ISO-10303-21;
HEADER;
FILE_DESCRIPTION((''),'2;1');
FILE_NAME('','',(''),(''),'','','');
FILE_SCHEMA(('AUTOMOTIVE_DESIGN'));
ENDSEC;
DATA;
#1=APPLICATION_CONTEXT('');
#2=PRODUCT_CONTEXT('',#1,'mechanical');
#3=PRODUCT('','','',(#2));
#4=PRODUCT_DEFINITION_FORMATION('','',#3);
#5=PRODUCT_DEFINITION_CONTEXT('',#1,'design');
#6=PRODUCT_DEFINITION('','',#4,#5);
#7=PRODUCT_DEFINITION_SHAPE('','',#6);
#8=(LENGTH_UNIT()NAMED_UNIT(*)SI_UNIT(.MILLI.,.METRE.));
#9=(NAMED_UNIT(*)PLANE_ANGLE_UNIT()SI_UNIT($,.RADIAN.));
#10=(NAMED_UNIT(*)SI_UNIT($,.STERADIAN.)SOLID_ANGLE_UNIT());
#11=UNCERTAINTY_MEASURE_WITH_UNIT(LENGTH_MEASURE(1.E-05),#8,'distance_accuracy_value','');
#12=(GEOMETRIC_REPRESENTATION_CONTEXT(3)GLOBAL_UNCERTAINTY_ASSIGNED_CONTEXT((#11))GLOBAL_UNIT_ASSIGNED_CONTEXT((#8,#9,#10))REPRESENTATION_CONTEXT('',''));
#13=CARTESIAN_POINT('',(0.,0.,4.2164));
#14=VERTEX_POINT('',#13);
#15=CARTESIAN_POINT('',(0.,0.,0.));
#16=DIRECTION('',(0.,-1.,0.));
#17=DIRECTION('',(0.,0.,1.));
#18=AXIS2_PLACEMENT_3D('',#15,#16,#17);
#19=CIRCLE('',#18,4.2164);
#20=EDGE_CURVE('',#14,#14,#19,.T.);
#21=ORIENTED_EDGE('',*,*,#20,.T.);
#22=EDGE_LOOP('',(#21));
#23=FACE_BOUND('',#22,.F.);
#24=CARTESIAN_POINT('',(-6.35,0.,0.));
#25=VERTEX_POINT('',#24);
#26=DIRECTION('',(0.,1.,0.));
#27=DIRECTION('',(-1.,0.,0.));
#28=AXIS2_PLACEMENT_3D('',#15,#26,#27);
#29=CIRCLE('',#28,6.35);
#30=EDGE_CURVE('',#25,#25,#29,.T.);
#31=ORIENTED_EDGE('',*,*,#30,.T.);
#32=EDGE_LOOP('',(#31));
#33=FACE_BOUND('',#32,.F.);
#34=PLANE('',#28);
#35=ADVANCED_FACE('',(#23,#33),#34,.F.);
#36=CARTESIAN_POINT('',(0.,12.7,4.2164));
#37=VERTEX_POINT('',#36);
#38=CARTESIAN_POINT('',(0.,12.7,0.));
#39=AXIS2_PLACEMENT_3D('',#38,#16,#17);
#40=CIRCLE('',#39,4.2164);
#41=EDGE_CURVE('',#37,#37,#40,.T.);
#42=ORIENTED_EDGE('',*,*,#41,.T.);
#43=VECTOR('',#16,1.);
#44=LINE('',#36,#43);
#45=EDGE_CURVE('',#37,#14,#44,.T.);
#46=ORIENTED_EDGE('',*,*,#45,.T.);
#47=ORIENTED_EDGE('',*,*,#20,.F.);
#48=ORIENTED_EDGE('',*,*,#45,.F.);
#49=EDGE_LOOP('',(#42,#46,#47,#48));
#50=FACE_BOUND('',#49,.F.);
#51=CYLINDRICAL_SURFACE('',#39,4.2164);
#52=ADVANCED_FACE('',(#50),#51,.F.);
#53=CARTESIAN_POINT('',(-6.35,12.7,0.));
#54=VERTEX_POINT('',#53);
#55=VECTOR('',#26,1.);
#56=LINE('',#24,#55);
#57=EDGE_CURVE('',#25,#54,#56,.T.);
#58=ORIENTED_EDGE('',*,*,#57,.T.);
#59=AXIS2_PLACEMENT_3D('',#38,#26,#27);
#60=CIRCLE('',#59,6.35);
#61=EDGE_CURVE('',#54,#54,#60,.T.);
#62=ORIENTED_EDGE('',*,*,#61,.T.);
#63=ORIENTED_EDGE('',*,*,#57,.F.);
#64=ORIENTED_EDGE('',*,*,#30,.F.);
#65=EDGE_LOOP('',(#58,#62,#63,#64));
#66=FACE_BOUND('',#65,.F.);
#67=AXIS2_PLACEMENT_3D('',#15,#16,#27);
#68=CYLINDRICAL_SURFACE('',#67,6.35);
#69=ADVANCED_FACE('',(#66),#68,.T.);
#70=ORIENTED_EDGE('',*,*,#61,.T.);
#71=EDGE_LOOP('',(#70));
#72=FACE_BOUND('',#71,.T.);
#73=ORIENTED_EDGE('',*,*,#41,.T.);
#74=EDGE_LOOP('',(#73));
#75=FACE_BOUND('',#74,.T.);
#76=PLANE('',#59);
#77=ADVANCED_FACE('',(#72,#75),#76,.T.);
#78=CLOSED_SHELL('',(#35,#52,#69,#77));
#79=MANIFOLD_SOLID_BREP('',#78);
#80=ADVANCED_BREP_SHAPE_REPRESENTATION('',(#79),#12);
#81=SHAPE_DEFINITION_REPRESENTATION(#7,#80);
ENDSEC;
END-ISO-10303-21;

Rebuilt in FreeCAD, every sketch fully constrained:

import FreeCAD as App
import Part
import Sketcher
from FreeCAD import Vector
Q = App.Units.Quantity

doc = App.newDocument("Part")
body = doc.addObject("PartDesign::Body", "Body")

# Sketch on XZ plane
sketch1 = body.newObject("Sketcher::SketchObject", "Sketch")
sketch1.AttachmentSupport = (doc.getObject("XZ_Plane"), [""])
sketch1.MapMode = "FlatFace"
sketch1.addGeometry(Part.Circle(Vector(0, 0, 0), Vector(0, 0, 1), 6), False)
sketch1.addConstraint(Sketcher.Constraint("Coincident", 0, 3, -1, 1))
sketch1.addConstraint(Sketcher.Constraint("Diameter", 0, Q("0.5 in")))
pad1 = body.newObject("PartDesign::Pad", "Pad")
pad1.Profile = sketch1
pad1.Length = Q("0.5 in")
pad1.Reversed = True

# Sketch on XZ plane
sketch2 = body.newObject("Sketcher::SketchObject", "Sketch001")
sketch2.AttachmentSupport = (doc.getObject("XZ_Plane"), [""])
sketch2.MapMode = "FlatFace"
sketch2.AttachmentOffset = App.Placement(Vector(0, 0, -0.5 * 25.4), App.Rotation())
sketch2.addGeometry(Part.Circle(Vector(0, 0, 0), Vector(0, 0, 1), 4.2), False)
sketch2.addConstraint(Sketcher.Constraint("Coincident", 0, 3, -1, 1))
sketch2.addConstraint(Sketcher.Constraint("Diameter", 0, Q("0.332 in")))
doc.recompute()
hole = body.newObject("PartDesign::Hole", "Hole")
hole.Profile = sketch2
hole.ThreadType = "None"
hole.Diameter = Q("0.332 in")
hole.DepthType = "ThroughAll"
hole.Reversed = True

doc.recompute()
